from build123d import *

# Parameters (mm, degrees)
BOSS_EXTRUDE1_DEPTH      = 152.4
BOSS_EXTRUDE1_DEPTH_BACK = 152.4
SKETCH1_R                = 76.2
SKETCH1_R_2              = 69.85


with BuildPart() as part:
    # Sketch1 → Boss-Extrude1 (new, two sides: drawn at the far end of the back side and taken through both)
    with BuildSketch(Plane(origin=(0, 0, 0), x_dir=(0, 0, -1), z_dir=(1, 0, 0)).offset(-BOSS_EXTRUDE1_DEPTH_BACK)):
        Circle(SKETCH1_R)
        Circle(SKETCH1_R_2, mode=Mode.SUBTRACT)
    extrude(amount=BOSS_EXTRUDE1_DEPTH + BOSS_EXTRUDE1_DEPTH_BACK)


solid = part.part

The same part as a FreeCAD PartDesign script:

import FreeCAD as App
import Part
import Sketcher
from FreeCAD import Vector
Q = App.Units.Quantity

doc = App.newDocument("Part")
body = doc.addObject("PartDesign::Body", "Body")

sketch1 = body.newObject("Sketcher::SketchObject", "Sketch")
sketch1.AttachmentSupport = (doc.getObject("YZ_Plane"), [""])
sketch1.MapMode = "FlatFace"
sketch1.addGeometry([
    Part.Circle(Vector(0, 0, 0), Vector(0, 0, 1), 76),
    Part.Circle(Vector(0, 0, 0), Vector(0, 0, 1), 70),
], False)
sketch1.addConstraint([
    Sketcher.Constraint("Coincident", 0, 3, -1, 1),
    Sketcher.Constraint("Coincident", 1, 3, -1, 1),
    Sketcher.Constraint("Diameter", 0, Q("6 in")),
    Sketcher.Constraint("Diameter", 1, Q("5.5 in")),
])
pad1 = body.newObject("PartDesign::Pad", "Pad")
pad1.Profile = sketch1
pad1.Type = "TwoLengths"
pad1.Length = Q("6 in")
pad1.Length2 = Q("6 in")

doc.recompute()
